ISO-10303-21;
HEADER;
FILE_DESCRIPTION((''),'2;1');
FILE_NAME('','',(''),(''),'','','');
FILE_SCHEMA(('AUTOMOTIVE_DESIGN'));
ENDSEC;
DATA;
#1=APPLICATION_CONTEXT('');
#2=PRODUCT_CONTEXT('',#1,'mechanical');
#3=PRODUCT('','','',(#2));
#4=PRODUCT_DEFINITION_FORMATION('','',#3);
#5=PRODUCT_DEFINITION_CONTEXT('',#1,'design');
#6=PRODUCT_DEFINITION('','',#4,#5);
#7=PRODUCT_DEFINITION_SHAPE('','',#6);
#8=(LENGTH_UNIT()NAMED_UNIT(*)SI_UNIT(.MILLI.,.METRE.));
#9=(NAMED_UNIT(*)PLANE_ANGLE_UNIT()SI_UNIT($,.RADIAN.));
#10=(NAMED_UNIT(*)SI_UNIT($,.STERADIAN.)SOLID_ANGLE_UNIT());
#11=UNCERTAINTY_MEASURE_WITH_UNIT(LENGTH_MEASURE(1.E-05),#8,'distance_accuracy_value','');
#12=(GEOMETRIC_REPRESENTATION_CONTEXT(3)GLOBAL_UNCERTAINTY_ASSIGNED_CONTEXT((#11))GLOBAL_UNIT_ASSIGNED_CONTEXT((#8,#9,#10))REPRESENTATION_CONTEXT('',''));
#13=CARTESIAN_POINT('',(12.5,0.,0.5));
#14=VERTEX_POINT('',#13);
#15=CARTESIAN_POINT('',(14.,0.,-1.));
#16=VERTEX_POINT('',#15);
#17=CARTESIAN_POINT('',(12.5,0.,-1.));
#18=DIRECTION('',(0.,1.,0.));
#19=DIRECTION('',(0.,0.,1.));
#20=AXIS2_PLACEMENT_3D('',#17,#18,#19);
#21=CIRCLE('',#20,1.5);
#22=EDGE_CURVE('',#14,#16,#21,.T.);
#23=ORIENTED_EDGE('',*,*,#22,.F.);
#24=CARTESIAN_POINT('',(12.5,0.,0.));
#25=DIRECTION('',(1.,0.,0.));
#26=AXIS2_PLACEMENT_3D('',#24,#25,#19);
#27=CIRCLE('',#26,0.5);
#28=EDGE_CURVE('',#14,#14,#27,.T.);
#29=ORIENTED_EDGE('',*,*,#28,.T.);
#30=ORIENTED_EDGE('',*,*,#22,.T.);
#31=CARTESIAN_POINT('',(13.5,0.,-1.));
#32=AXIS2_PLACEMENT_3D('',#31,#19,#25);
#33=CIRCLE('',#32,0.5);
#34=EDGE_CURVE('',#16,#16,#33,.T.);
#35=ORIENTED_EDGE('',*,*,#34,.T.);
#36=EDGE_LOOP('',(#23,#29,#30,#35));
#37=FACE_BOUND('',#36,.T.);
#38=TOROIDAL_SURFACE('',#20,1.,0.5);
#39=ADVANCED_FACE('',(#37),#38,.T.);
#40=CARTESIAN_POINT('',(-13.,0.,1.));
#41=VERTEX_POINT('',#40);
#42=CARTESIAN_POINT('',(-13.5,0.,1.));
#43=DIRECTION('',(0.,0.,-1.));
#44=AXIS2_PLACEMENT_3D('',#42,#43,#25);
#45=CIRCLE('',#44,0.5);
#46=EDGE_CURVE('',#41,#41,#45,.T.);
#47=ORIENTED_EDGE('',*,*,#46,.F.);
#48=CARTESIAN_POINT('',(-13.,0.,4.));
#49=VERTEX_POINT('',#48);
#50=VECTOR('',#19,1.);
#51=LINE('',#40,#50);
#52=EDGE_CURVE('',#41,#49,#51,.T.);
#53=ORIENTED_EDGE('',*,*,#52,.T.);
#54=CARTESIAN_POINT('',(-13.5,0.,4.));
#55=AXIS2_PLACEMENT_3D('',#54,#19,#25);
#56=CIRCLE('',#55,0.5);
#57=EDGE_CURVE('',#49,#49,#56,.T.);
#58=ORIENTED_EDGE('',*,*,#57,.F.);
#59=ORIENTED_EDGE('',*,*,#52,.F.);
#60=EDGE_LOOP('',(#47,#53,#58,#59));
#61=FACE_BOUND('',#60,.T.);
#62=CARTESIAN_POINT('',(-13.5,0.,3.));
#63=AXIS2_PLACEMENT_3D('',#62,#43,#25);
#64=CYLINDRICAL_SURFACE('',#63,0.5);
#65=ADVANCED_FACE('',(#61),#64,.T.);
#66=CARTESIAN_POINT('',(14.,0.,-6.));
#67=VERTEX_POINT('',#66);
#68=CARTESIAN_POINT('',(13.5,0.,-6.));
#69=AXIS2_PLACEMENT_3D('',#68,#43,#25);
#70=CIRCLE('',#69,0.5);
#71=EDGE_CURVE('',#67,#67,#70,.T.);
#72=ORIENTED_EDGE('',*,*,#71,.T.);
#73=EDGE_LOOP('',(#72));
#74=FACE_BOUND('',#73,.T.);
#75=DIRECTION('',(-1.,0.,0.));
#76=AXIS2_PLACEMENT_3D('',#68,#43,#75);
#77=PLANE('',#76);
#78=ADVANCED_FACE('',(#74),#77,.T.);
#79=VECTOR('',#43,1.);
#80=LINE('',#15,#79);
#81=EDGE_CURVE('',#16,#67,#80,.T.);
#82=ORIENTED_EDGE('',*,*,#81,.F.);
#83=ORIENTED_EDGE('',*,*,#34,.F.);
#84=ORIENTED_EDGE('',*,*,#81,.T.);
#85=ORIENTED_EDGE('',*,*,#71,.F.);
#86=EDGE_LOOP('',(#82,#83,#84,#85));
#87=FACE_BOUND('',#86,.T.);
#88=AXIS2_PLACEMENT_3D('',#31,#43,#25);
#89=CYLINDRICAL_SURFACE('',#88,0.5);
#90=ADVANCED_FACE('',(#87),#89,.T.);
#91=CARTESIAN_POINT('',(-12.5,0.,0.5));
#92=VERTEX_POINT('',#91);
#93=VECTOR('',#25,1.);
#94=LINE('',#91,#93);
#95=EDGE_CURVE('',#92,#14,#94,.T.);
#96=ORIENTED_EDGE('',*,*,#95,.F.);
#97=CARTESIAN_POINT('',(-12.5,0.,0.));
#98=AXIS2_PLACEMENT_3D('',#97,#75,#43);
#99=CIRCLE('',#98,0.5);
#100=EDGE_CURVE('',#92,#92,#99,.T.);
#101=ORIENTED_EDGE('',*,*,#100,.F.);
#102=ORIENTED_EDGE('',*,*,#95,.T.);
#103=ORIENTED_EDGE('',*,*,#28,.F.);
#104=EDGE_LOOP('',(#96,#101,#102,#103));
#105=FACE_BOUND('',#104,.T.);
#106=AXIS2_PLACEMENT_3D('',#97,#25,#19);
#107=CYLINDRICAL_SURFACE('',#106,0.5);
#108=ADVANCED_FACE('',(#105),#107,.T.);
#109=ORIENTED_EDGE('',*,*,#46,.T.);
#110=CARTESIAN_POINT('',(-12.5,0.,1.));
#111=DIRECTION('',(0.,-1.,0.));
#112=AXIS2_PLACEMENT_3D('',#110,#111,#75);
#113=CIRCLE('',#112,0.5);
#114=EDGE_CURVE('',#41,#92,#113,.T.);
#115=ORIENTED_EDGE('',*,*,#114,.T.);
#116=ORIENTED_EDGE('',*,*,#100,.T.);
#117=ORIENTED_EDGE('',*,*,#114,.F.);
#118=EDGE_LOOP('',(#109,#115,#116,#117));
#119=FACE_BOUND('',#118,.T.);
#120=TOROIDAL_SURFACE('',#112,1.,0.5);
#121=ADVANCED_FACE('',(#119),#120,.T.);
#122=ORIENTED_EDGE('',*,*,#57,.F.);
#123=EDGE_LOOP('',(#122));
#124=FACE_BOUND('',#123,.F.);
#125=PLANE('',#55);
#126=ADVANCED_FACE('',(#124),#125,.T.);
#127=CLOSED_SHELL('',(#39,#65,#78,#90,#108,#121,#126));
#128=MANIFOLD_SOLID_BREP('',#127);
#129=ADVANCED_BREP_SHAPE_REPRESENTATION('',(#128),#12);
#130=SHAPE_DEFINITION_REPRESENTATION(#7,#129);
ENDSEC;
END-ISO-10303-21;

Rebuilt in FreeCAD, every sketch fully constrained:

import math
import FreeCAD as App
import Part
import Sketcher

V = App.Vector
Q = App.Units.Quantity


def add_polygon(sketch, points):
    """Adds a closed chain of lines whose ends are joined by coincident constraints."""
    first, n = sketch.GeometryCount, len(points)
    for a, b in zip(points, points[1:] + points[:1]):
        sketch.addGeometry(Part.LineSegment(App.Vector(*a, 0), App.Vector(*b, 0)), False)
    for i in range(n):
        sketch.addConstraint(Sketcher.Constraint("Coincident", first + i, 2, first + (i + 1) % n, 1))

doc = App.newDocument("Part")
body = doc.addObject("PartDesign::Body", "Body")

# Sketch on XZ plane
sketch1 = body.newObject("Sketcher::SketchObject", "Sketch")
sketch1.AttachmentSupport = (doc.getObject("XZ_Plane"), [""])
sketch1.MapMode = "FlatFace"
add_polygon(sketch1, [(-13.5, 4), (-13.5, 3), (-13, 3), (-13, 4)])  # lines 0-3
sketch1.addGeometry(Part.LineSegment(V(-13.5, 3, 0), V(-13.5, 4, 0)), True)  # axis
sketch1.addConstraint([
    Sketcher.Constraint("Vertical", 0),
    Sketcher.Constraint("Horizontal", 1),
    Sketcher.Constraint("Vertical", 2),
    Sketcher.Constraint("Horizontal", 3),
    Sketcher.Constraint("Vertical", 4),
    Sketcher.Constraint("Coincident", 4, 1, 0, 2),
    Sketcher.Constraint("Horizontal", 2, 2, 4, 2),
    Sketcher.Constraint("DistanceY", 0, 2, 0, 1, Q("1 mm")),
    Sketcher.Constraint("DistanceX", 1, 1, 1, 2, Q("0.5 mm")),
    Sketcher.Constraint("DistanceY", -1, 1, 0, 2, Q("3 mm")),
    Sketcher.Constraint("DistanceX", 1, 2, -1, 1, Q("13 mm")),
])
revolution = body.newObject("PartDesign::Revolution", "Revolution")
revolution.Profile = sketch1
revolution.ReferenceAxis = (sketch1, ["Axis0"])
revolution.Angle = 360

# Sketch on XY plane
sketch2 = body.newObject("Sketcher::SketchObject", "Sketch001")
sketch2.AttachmentSupport = (doc.getObject("XY_Plane"), [""])
sketch2.MapMode = "FlatFace"
sketch2.AttachmentOffset = App.Placement(V(0, 0, 3), App.Rotation())
sketch2.addGeometry(Part.Circle(V(-13.5, 0, 0), V(0, 0, 1), 0.5), False)
sketch2.addConstraint([
    Sketcher.Constraint("PointOnObject", 0, 3, -1),
    Sketcher.Constraint("Diameter", 0, Q("1 mm")),
    Sketcher.Constraint("DistanceX", 0, 3, -1, 1, Q("13.5 mm")),
])

# Sketch on XZ plane
sketch3 = body.newObject("Sketcher::SketchObject", "Sketch002")
sketch3.AttachmentSupport = (doc.getObject("XZ_Plane"), [""])
sketch3.MapMode = "FlatFace"
sketch3.addGeometry([
    Part.LineSegment(V(-13.5, 3, 0), V(-13.5, 1, 0)),  # 0
    Part.ArcOfCircle(Part.Circle(V(-12.5, 1, 0), V(0, 0, 1), 1), math.radians(180), math.radians(270)),  # 1
    Part.LineSegment(V(-12.5, 0, 0), V(12.5, 0, 0)),  # 2
    Part.ArcOfCircle(Part.Circle(V(12.5, -1, 0), V(0, 0, 1), 1), math.radians(0), math.radians(90)),  # 3
    Part.LineSegment(V(13.5, -1, 0), V(13.5, -6, 0)),  # 4
], False)
sketch3.addConstraint([
    Sketcher.Constraint("Tangent", 0, 2, 1, 1),
    Sketcher.Constraint("Tangent", 1, 2, 2, 1),
    Sketcher.Constraint("Tangent", 2, 2, 3, 2),
    Sketcher.Constraint("Tangent", 3, 1, 4, 1),
    Sketcher.Constraint("Vertical", 0),
    Sketcher.Constraint("Horizontal", 2),
    Sketcher.Constraint("Vertical", 4),
    Sketcher.Constraint("Equal", 1, 3),
    Sketcher.Constraint("Symmetric", 1, 3, 3, 3, -1, 1),
    Sketcher.Constraint("Radius", 1, Q("1 mm")),
    Sketcher.Constraint("DistanceX", 2, 1, 2, 2, Q("25 mm")),
    Sketcher.Constraint("DistanceY", 0, 2, 0, 1, Q("2 mm")),
    Sketcher.Constraint("DistanceY", 4, 2, 4, 1, Q("5 mm")),
])
doc.recompute()

additivepipe = body.newObject("PartDesign::AdditivePipe", "AdditivePipe")
additivepipe.Profile = sketch2
additivepipe.Spine = (sketch3, ["Edge1", "Edge2", "Edge3", "Edge4", "Edge5"])

doc.recompute()
